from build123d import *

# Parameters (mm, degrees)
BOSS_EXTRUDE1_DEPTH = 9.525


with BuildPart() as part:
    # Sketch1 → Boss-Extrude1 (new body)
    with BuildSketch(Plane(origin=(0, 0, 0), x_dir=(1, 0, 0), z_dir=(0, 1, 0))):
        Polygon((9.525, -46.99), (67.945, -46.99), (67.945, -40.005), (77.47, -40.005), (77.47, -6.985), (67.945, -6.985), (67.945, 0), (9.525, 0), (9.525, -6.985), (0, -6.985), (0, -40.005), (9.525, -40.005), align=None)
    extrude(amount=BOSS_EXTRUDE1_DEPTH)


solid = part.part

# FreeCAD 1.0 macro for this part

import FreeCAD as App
import Part
import Sketcher
Q = App.Units.Quantity


def add_polygon(sketch, points):
    """Adds a closed chain of lines whose ends are joined by coincident constraints."""
    first, n = sketch.GeometryCount, len(points)
    for a, b in zip(points, points[1:] + points[:1]):
        sketch.addGeometry(Part.LineSegment(App.Vector(*a, 0), App.Vector(*b, 0)), False)
    for i in range(n):
        sketch.addConstraint(Sketcher.Constraint("Coincident", first + i, 2, first + (i + 1) % n, 1))

doc = App.newDocument("Part")
body = doc.addObject("PartDesign::Body", "Body")

# Sketch on XZ plane
sketch1 = body.newObject("Sketcher::SketchObject", "Sketch")
sketch1.AttachmentSupport = (doc.getObject("XZ_Plane"), [""])
sketch1.MapMode = "FlatFace"
add_polygon(sketch1, [(10, 47), (68, 47), (68, 40), (77, 40), (77, 7), (68, 7), (68, 0), (10, 0), (10, 7), (0, 7), (0, 40), (10, 40)])  # lines 0-11
sketch1.addConstraint(Sketcher.Constraint("Horizontal", 0))
sketch1.addConstraint(Sketcher.Constraint("Vertical", 1))
sketch1.addConstraint(Sketcher.Constraint("Horizontal", 2))
sketch1.addConstraint(Sketcher.Constraint("Vertical", 3))
sketch1.addConstraint(Sketcher.Constraint("Horizontal", 4))
sketch1.addConstraint(Sketcher.Constraint("Vertical", 5))
sketch1.addConstraint(Sketcher.Constraint("Horizontal", 6))
sketch1.addConstraint(Sketcher.Constraint("Vertical", 7))
sketch1.addConstraint(Sketcher.Constraint("Horizontal", 8))
sketch1.addConstraint(Sketcher.Constraint("Vertical", 9))
sketch1.addConstraint(Sketcher.Constraint("Horizontal", 10))
sketch1.addConstraint(Sketcher.Constraint("Vertical", 11))
sketch1.addConstraint(Sketcher.Constraint("PointOnObject", 5, 2, -1))
sketch1.addConstraint(Sketcher.Constraint("PointOnObject", 8, 2, -2))
sketch1.addConstraint(Sketcher.Constraint("Horizontal", 4, 2, 7, 2))
sketch1.addConstraint(Sketcher.Constraint("Horizontal", 2, 2, 9, 2))
sketch1.addConstraint(Sketcher.Constraint("Vertical", 1, 2, 4, 2))
sketch1.addConstraint(Sketcher.Constraint("Vertical", 7, 2, 10, 2))
sketch1.addConstraint(Sketcher.Constraint("Equal", 4, 8))
sketch1.addConstraint(Sketcher.Constraint("Equal", 1, 5))
sketch1.addConstraint(Sketcher.Constraint("DistanceX", 0, 1, 0, 2, Q("2.3 in")))
sketch1.addConstraint(Sketcher.Constraint("DistanceY", 3, 2, 3, 1, Q("1.3 in")))
sketch1.addConstraint(Sketcher.Constraint("DistanceX", 2, 1, 2, 2, Q("0.375 in")))
sketch1.addConstraint(Sketcher.Constraint("DistanceY", 1, 2, 1, 1, Q("0.275 in")))
pad1 = body.newObject("PartDesign::Pad", "Pad")
pad1.Profile = sketch1
pad1.Length = Q("0.375 in")
pad1.Reversed = True

doc.recompute()
